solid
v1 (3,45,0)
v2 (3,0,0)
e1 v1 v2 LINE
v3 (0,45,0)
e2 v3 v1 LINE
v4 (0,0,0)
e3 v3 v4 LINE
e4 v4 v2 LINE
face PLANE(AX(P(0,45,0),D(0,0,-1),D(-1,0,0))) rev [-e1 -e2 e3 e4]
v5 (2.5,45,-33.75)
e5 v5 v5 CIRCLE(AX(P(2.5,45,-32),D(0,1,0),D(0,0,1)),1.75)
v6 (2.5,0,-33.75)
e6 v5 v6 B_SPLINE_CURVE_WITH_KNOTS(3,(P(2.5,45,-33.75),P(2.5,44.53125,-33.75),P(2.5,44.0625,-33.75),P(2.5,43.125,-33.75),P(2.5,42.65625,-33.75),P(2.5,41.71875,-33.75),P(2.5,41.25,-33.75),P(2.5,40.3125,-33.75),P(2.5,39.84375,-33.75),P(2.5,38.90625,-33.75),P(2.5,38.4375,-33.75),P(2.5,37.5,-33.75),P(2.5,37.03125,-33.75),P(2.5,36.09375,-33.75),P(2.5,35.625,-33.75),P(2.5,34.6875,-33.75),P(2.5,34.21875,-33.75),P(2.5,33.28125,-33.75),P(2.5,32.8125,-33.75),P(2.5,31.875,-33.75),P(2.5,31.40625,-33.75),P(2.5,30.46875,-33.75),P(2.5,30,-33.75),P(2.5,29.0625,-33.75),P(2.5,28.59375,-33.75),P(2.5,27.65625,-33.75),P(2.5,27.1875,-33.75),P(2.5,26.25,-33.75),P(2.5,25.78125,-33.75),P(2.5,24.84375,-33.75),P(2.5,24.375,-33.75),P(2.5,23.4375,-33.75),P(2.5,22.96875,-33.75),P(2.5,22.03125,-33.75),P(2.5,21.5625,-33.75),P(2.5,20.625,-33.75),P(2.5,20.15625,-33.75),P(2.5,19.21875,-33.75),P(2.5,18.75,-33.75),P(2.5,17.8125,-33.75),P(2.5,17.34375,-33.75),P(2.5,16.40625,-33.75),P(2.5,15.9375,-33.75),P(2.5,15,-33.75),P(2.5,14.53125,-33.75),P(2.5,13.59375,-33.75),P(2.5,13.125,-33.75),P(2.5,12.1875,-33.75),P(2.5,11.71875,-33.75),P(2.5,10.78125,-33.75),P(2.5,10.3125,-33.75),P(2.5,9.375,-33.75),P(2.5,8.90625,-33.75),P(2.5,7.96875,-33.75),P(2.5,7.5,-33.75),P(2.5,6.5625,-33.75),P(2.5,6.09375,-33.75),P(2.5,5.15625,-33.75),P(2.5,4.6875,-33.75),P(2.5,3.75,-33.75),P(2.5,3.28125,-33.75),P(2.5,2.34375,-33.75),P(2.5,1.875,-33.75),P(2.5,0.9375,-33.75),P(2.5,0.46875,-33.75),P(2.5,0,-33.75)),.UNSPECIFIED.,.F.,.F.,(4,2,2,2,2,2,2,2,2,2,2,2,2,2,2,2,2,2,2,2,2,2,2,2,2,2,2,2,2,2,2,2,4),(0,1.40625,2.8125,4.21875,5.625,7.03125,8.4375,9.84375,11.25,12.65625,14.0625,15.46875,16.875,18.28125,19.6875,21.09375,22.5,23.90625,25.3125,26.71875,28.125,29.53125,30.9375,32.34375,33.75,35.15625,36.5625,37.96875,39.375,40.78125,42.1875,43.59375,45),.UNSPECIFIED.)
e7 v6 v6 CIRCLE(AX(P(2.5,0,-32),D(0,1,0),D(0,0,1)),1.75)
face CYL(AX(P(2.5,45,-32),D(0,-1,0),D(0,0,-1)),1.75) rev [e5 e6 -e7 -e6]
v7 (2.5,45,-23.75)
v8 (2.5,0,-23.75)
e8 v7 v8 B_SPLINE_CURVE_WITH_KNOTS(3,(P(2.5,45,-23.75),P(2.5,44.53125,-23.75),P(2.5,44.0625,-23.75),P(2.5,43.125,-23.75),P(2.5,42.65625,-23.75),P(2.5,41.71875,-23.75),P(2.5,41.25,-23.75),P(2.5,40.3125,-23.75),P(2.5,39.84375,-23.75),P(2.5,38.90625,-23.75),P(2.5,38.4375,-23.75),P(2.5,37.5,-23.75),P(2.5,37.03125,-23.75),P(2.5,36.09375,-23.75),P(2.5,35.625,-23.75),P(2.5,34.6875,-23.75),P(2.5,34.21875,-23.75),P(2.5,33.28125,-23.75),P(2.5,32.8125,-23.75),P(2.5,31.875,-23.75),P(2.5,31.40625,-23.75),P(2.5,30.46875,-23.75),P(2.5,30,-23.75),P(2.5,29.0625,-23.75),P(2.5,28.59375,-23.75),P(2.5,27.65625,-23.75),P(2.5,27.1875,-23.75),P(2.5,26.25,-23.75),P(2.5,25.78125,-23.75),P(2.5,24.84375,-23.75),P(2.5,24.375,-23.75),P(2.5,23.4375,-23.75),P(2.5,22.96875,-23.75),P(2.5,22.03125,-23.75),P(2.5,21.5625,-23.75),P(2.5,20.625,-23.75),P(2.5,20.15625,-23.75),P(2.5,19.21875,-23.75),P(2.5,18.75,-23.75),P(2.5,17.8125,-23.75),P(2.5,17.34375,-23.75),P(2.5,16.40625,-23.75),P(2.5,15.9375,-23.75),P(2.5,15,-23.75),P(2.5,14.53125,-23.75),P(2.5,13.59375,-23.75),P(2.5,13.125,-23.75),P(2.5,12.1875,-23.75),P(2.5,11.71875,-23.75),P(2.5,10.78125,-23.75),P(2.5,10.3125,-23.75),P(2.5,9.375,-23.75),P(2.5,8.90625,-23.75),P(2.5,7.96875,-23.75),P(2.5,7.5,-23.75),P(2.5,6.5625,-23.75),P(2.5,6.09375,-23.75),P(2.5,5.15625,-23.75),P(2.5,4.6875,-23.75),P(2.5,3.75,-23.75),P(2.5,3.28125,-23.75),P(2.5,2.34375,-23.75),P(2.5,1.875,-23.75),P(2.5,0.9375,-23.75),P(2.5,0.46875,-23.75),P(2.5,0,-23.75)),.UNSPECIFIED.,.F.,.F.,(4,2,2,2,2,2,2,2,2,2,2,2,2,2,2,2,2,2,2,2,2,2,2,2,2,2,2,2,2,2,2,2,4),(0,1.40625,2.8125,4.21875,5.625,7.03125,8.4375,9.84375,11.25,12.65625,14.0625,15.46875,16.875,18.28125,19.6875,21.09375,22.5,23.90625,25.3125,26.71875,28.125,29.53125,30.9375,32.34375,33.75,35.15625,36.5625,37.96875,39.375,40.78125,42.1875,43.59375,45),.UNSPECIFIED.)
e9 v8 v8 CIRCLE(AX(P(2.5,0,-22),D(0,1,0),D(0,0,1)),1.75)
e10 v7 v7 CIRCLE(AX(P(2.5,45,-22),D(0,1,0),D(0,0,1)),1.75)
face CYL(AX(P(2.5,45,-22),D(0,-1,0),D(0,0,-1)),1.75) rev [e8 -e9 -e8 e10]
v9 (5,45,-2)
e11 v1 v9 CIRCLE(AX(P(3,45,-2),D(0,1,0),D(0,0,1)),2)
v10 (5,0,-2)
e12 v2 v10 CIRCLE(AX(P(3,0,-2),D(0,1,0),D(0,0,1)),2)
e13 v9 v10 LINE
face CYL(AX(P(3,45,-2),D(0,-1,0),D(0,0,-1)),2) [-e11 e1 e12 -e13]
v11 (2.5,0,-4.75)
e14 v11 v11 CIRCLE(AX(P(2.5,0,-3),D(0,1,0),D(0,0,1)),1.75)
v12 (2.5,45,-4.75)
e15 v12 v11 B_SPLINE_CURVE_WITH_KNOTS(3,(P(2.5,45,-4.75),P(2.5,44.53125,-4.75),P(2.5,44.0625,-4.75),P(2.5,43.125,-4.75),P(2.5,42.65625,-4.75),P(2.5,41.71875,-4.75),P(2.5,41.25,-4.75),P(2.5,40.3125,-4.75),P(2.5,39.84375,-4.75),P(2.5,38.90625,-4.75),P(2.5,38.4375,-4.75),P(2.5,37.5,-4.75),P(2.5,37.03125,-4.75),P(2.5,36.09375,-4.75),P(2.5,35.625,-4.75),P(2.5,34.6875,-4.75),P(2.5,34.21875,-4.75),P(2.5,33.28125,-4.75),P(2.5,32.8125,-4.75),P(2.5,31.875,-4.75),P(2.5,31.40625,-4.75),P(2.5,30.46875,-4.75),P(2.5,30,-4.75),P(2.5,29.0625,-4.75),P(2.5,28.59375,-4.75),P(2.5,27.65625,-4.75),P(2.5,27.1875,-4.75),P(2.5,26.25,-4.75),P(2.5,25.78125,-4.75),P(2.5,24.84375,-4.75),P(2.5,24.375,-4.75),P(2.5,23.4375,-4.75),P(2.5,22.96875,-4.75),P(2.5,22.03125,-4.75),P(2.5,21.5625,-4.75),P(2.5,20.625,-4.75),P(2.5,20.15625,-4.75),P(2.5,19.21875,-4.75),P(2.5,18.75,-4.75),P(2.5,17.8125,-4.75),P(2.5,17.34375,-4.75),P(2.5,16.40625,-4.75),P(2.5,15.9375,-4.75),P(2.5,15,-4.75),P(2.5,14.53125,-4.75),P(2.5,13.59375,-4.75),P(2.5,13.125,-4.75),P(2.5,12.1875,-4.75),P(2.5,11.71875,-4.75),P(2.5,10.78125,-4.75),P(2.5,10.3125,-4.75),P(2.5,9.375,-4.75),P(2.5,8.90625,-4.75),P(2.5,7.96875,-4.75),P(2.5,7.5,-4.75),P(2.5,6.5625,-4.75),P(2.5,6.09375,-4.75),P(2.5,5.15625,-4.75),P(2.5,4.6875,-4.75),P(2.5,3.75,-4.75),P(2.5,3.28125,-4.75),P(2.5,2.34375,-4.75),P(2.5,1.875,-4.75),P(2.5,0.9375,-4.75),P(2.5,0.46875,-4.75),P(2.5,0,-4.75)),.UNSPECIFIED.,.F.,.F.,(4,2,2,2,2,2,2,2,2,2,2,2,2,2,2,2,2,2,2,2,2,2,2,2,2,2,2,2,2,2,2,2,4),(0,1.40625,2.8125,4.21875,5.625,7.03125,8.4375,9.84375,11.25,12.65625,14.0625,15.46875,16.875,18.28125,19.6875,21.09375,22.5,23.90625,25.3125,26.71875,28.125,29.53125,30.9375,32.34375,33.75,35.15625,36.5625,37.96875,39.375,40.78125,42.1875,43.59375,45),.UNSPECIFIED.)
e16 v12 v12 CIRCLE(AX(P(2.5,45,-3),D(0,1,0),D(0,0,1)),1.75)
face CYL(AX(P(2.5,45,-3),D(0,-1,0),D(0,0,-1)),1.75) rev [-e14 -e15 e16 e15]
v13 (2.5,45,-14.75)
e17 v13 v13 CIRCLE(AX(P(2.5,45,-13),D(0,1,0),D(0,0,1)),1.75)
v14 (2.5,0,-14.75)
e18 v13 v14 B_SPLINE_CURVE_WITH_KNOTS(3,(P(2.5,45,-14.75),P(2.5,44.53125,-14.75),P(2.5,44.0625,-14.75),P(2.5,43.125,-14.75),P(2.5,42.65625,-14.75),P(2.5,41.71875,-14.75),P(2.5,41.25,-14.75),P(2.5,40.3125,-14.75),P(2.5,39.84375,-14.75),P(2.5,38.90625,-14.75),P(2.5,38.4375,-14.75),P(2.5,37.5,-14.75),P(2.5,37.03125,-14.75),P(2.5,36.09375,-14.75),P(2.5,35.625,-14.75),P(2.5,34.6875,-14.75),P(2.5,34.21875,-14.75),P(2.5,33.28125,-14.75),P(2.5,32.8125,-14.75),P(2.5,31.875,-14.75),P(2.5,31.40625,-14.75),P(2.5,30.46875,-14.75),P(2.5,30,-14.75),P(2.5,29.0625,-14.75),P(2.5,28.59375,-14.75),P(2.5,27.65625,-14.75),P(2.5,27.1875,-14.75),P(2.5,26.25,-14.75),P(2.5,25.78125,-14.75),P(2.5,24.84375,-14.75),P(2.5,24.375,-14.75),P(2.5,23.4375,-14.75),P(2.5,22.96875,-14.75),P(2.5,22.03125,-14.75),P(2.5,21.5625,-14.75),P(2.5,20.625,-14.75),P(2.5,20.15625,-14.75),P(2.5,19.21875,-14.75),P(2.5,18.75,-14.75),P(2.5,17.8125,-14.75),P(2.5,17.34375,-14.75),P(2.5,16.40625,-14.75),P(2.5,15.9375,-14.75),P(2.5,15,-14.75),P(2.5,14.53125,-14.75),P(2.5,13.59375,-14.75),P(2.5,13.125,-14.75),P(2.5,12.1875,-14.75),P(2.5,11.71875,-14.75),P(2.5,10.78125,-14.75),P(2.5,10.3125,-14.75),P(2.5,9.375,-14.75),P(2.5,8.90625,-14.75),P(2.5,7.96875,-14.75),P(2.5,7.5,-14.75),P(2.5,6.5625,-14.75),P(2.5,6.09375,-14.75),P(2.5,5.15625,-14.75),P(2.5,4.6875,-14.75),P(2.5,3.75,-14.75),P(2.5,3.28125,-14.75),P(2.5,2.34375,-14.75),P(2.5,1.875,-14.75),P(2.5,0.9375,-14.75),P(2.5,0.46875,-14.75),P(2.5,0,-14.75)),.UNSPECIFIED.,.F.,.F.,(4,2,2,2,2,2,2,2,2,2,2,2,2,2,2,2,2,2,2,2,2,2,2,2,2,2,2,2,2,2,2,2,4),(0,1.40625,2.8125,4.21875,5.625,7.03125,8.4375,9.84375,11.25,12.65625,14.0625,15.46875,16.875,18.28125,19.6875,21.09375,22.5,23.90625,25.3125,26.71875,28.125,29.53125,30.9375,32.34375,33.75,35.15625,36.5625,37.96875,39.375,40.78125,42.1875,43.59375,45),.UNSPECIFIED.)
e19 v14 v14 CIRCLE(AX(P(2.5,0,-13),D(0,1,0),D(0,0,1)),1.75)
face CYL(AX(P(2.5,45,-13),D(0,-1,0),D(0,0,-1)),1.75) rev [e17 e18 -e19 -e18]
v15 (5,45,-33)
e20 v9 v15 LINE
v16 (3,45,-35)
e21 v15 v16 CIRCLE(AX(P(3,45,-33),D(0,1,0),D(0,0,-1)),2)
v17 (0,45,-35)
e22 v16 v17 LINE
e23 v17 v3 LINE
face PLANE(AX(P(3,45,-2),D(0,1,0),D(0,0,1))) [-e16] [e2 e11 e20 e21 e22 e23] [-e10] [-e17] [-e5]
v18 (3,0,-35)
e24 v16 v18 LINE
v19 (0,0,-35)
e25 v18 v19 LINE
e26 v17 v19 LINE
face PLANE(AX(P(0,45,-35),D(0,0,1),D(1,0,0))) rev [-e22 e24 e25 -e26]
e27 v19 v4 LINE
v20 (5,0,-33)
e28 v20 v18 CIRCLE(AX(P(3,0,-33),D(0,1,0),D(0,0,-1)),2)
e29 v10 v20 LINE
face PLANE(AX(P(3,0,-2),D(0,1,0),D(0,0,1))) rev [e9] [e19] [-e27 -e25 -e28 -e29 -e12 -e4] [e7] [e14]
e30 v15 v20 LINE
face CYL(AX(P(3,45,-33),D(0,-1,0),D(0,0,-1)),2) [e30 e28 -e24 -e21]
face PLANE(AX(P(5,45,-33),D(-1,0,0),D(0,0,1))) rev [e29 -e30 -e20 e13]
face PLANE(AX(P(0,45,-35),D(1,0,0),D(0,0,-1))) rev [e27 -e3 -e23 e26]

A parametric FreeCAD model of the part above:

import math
import FreeCAD as App
import Part
import Sketcher
from FreeCAD import Vector

doc = App.newDocument("Part")
body = doc.addObject("PartDesign::Body", "Body")

sketch1 = body.newObject("Sketcher::SketchObject", "Sketch")
sketch1.AttachmentSupport = (doc.getObject("XZ_Plane"), [""])
sketch1.MapMode = "FlatFace"
sketch1.addGeometry([
    Part.LineSegment(Vector(3, -35, 0), Vector(0, -35, 0)),
    Part.LineSegment(Vector(0, -35, 0), Vector(0, 0, 0)),
    Part.LineSegment(Vector(0, 0, 0), Vector(3, 0, 0)),
    Part.ArcOfCircle(Part.Circle(Vector(3, -2, 0), Vector(0, 0, 1), 2), math.radians(0), math.radians(90)),
    Part.LineSegment(Vector(5, -2, 0), Vector(5, -33, 0)),
    Part.ArcOfCircle(Part.Circle(Vector(3, -33, 0), Vector(0, 0, 1), 2), math.radians(-90), math.radians(0)),
    Part.Circle(Vector(2.5, -3, 0), Vector(0, 0, 1), 1.8),
    Part.Circle(Vector(2.5, -13, 0), Vector(0, 0, 1), 1.8),
    Part.Circle(Vector(2.5, -22, 0), Vector(0, 0, 1), 1.8),
    Part.Circle(Vector(2.5, -32, 0), Vector(0, 0, 1), 1.8),
], False)
sketch1.addConstraint([
    Sketcher.Constraint("Coincident", 0, 2, 1, 1),
    Sketcher.Constraint("Coincident", 1, 2, 2, 1),
    Sketcher.Constraint("Tangent", 2, 2, 3, 2),
    Sketcher.Constraint("Tangent", 3, 1, 4, 1),
    Sketcher.Constraint("Tangent", 4, 2, 5, 2),
    Sketcher.Constraint("Tangent", 5, 1, 0, 1),
    Sketcher.Constraint("Horizontal", 0),
    Sketcher.Constraint("Vertical", 1),
    Sketcher.Constraint("Horizontal", 2),
    Sketcher.Constraint("Vertical", 4),
    Sketcher.Constraint("Coincident", 1, 2, -1, 1),
    Sketcher.Constraint("Equal", 3, 5),
    Sketcher.Constraint("Equal", 6, 7),
    Sketcher.Constraint("Equal", 7, 8),
    Sketcher.Constraint("Equal", 8, 9),
    Sketcher.Constraint("Vertical", 6, 3, 7, 3),
    Sketcher.Constraint("Vertical", 7, 3, 8, 3),
    Sketcher.Constraint("Vertical", 8, 3, 9, 3),
    Sketcher.Constraint("Radius", 3, 2.0),
    Sketcher.Constraint("Diameter", 6, 3.5),
    Sketcher.Constraint("DistanceX", 0, 2, 0, 1, 3.0),
    Sketcher.Constraint("DistanceY", 1, 1, 1, 2, 35.0),
    Sketcher.Constraint("DistanceY", 6, 3, -1, 1, 3.0),
    Sketcher.Constraint("DistanceY", 7, 3, -1, 1, 13.0),
    Sketcher.Constraint("DistanceY", 8, 3, -1, 1, 22.0),
    Sketcher.Constraint("DistanceY", 9, 3, -1, 1, 32.0),
    Sketcher.Constraint("DistanceX", -1, 1, 6, 3, 2.5),
])
pad1 = body.newObject("PartDesign::Pad", "Pad")
pad1.Profile = sketch1
pad1.Length = 45
pad1.Reversed = True

doc.recompute()
